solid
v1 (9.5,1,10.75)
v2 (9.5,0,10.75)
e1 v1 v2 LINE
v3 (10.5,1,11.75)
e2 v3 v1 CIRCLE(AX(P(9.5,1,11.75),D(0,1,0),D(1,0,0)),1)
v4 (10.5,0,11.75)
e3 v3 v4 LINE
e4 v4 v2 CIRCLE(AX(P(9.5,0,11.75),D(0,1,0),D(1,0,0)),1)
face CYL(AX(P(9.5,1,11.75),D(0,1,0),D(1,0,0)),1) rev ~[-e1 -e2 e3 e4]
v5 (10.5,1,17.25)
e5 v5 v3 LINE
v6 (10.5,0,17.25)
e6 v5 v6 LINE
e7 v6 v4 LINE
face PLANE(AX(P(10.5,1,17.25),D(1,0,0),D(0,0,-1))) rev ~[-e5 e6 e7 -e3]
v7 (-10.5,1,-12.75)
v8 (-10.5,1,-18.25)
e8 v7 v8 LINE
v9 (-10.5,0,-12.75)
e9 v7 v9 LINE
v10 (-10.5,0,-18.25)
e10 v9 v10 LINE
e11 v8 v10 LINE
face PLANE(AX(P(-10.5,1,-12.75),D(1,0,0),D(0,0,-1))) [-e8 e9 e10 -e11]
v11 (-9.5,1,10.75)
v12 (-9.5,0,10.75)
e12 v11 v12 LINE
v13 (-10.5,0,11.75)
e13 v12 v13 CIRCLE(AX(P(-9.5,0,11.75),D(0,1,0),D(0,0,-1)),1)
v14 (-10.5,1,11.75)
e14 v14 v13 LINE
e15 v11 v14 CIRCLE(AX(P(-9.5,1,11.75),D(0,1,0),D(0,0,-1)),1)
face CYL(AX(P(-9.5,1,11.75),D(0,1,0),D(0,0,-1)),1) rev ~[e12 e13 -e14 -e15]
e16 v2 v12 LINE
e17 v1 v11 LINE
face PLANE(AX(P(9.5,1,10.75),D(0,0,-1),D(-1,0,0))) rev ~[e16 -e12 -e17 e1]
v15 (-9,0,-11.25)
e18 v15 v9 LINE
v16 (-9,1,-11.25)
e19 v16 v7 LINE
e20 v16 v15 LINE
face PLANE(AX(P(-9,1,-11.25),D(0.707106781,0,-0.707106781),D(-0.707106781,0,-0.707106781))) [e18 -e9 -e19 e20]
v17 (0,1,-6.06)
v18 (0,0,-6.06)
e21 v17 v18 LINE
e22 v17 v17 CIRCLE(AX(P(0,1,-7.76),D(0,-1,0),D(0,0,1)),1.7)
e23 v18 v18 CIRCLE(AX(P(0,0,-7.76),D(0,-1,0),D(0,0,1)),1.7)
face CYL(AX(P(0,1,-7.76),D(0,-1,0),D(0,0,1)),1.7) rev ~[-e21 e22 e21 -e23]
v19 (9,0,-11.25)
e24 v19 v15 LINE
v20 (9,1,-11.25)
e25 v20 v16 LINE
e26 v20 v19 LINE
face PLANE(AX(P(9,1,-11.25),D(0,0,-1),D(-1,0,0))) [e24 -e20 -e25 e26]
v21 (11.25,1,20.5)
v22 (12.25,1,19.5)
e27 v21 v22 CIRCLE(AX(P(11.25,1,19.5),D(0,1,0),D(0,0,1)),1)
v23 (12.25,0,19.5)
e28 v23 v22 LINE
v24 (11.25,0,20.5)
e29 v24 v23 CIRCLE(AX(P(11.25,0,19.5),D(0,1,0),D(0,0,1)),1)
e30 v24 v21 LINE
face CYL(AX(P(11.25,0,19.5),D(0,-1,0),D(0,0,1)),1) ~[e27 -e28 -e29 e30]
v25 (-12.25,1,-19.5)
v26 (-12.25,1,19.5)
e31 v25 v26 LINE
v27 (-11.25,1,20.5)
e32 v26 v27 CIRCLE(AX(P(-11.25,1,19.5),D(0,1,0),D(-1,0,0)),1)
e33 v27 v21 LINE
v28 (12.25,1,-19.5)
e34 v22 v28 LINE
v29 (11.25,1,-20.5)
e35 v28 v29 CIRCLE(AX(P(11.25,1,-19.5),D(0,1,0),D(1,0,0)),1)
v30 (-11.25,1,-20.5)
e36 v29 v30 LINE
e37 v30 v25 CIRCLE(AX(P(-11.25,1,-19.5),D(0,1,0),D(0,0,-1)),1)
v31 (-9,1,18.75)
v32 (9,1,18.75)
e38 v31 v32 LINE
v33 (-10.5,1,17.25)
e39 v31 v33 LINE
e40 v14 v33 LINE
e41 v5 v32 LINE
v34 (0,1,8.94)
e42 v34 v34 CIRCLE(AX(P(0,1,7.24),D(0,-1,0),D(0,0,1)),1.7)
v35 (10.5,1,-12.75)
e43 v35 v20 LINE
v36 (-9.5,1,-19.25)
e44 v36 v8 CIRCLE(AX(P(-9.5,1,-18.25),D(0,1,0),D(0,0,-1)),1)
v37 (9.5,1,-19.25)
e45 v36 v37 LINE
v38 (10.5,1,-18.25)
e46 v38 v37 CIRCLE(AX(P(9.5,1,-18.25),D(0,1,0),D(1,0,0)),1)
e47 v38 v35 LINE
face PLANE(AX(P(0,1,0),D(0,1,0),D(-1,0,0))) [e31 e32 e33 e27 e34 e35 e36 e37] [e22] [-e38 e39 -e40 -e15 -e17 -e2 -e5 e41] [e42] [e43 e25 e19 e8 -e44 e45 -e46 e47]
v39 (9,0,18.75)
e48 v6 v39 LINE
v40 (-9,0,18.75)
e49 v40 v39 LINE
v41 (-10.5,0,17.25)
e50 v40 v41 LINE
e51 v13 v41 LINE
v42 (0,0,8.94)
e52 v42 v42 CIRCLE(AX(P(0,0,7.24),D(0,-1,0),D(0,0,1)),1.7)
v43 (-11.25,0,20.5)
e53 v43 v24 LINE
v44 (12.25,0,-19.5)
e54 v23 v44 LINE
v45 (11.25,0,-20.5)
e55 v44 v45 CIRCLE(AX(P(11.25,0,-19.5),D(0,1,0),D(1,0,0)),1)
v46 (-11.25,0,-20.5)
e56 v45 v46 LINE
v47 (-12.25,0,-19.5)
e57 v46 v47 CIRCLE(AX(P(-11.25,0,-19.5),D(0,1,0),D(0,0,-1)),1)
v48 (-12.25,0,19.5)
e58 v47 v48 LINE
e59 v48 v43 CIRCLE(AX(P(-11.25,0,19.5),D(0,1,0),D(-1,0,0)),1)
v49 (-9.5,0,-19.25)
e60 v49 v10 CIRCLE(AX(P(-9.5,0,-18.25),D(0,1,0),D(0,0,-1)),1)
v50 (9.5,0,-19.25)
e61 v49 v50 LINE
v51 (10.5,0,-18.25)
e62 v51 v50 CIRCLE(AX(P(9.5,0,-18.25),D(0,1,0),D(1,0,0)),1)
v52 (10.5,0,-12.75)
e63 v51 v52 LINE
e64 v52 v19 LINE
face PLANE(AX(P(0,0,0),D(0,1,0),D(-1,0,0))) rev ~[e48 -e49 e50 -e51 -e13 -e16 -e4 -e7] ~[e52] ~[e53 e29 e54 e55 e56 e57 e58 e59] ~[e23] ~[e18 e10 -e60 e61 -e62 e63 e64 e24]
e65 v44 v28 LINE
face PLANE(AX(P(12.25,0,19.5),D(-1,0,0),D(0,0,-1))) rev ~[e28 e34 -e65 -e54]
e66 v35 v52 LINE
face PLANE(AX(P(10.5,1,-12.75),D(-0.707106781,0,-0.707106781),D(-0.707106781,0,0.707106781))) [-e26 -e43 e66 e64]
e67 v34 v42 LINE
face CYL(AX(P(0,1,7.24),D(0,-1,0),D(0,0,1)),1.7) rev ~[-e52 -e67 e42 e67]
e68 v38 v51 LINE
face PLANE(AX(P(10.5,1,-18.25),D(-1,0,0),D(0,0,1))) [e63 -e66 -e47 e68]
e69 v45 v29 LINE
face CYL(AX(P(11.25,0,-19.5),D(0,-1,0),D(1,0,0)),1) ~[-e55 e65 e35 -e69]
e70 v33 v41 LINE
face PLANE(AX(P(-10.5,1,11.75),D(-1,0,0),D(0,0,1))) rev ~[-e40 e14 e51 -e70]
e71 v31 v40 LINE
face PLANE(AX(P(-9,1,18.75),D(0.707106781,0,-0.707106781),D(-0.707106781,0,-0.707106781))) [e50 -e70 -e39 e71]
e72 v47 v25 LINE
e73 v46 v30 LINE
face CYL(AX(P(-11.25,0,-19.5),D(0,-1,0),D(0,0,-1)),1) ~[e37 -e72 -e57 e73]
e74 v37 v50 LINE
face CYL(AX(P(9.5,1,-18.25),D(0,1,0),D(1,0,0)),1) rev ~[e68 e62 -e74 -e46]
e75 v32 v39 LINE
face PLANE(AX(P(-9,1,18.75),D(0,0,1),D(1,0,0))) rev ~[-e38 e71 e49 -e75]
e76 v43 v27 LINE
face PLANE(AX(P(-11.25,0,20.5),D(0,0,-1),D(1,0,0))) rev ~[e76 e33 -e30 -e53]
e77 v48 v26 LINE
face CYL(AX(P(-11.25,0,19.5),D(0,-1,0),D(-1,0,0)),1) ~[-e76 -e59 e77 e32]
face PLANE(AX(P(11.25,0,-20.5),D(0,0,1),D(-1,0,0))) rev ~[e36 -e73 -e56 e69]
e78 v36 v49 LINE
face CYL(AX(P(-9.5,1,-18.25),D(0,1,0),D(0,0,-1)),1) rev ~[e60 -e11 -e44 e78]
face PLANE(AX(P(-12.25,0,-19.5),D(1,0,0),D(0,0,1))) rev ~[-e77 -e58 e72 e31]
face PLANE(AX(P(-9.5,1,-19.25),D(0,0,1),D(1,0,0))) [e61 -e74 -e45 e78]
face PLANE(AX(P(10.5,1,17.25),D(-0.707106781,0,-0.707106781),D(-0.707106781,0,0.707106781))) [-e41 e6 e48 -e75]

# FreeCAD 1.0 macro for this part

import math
import FreeCAD as App
import Part
import Sketcher

V = App.Vector
Q = App.Units.Quantity

doc = App.newDocument("Part")
body = doc.addObject("PartDesign::Body", "Body")

sketch1 = body.newObject("Sketcher::SketchObject", "Sketch")
sketch1.AttachmentSupport = (doc.getObject("XZ_Plane"), [""])
sketch1.MapMode = "FlatFace"
sketch1.addGeometry([
    Part.ArcOfCircle(Part.Circle(V(11.25, -19.5, 0), V(0, 0, 1), 1), math.radians(-90), math.radians(0)),
    Part.LineSegment(V(11.25, -20.5, 0), V(-11.25, -20.5, 0)),
    Part.ArcOfCircle(Part.Circle(V(-11.25, -19.5, 0), V(0, 0, 1), 1), math.radians(180), math.radians(270)),
    Part.LineSegment(V(-12.25, -19.5, 0), V(-12.25, 19.5, 0)),
    Part.ArcOfCircle(Part.Circle(V(-11.25, 19.5, 0), V(0, 0, 1), 1), math.radians(90), math.radians(180)),
    Part.LineSegment(V(-11.25, 20.5, 0), V(11.25, 20.5, 0)),
    Part.ArcOfCircle(Part.Circle(V(11.25, 19.5, 0), V(0, 0, 1), 1), math.radians(0), math.radians(90)),
    Part.LineSegment(V(12.25, 19.5, 0), V(12.25, -19.5, 0)),
], False)
sketch1.addConstraint([
    Sketcher.Constraint("Tangent", 0, 1, 1, 1),
    Sketcher.Constraint("Tangent", 1, 2, 2, 2),
    Sketcher.Constraint("Tangent", 2, 1, 3, 1),
    Sketcher.Constraint("Tangent", 3, 2, 4, 2),
    Sketcher.Constraint("Tangent", 4, 1, 5, 1),
    Sketcher.Constraint("Tangent", 5, 2, 6, 2),
    Sketcher.Constraint("Tangent", 6, 1, 7, 1),
    Sketcher.Constraint("Tangent", 7, 2, 0, 2),
    Sketcher.Constraint("Horizontal", 1),
    Sketcher.Constraint("Vertical", 3),
    Sketcher.Constraint("Horizontal", 5),
    Sketcher.Constraint("Vertical", 7),
    Sketcher.Constraint("Equal", 0, 2),
    Sketcher.Constraint("Equal", 2, 4),
    Sketcher.Constraint("Equal", 4, 6),
    Sketcher.Constraint("Symmetric", 0, 3, 4, 3, -1, 1),
    Sketcher.Constraint("Radius", 0, Q("1 mm")),
    Sketcher.Constraint("DistanceX", 3, 2, 6, 1, Q("24.5 mm")),
    Sketcher.Constraint("DistanceY", 3, 1, 3, 2, Q("39 mm")),
])
pad1 = body.newObject("PartDesign::Pad", "Pad")
pad1.Profile = sketch1
pad1.Length = 1
pad1.Reversed = True

sketch2 = body.newObject("Sketcher::SketchObject", "Sketch001")
sketch2.AttachmentSupport = (doc.getObject("XZ_Plane"), [""])
sketch2.MapMode = "FlatFace"
sketch2.AttachmentOffset = App.Placement(V(0, 0, -1), App.Rotation())
sketch2.addGeometry([
    Part.ArcOfCircle(Part.Circle(V(9.5, 11.75, 0), V(0, 0, 1), 1), math.radians(-90), math.radians(0)),
    Part.LineSegment(V(9.5, 10.75, 0), V(-9.5, 10.75, 0)),
    Part.ArcOfCircle(Part.Circle(V(-9.5, 11.75, 0), V(0, 0, 1), 1), math.radians(180), math.radians(270)),
    Part.LineSegment(V(-10.5, 11.75, 0), V(-10.5, 17.25, 0)),
    Part.LineSegment(V(-10.5, 17.25, 0), V(-9, 18.75, 0)),
    Part.LineSegment(V(-9, 18.75, 0), V(9, 18.75, 0)),
    Part.LineSegment(V(9, 18.75, 0), V(10.5, 17.25, 0)),
    Part.LineSegment(V(10.5, 17.25, 0), V(10.5, 11.75, 0)),
    Part.LineSegment(V(9.5, -19.25, 0), V(-9.5, -19.25, 0)),
    Part.ArcOfCircle(Part.Circle(V(-9.5, -18.25, 0), V(0, 0, 1), 1), math.radians(180), math.radians(270)),
    Part.LineSegment(V(-10.5, -18.25, 0), V(-10.5, -12.75, 0)),
    Part.LineSegment(V(-10.5, -12.75, 0), V(-9, -11.25, 0)),
    Part.LineSegment(V(-9, -11.25, 0), V(9, -11.25, 0)),
    Part.LineSegment(V(9, -11.25, 0), V(10.5, -12.75, 0)),
    Part.LineSegment(V(10.5, -12.75, 0), V(10.5, -18.25, 0)),
    Part.ArcOfCircle(Part.Circle(V(9.5, -18.25, 0), V(0, 0, 1), 1), math.radians(-90), math.radians(0)),
], False)
sketch2.addConstraint([
    Sketcher.Constraint("Tangent", 0, 1, 1, 1),
    Sketcher.Constraint("Tangent", 1, 2, 2, 2),
    Sketcher.Constraint("Tangent", 2, 1, 3, 1),
    Sketcher.Constraint("Coincident", 3, 2, 4, 1),
    Sketcher.Constraint("Coincident", 4, 2, 5, 1),
    Sketcher.Constraint("Coincident", 5, 2, 6, 1),
    Sketcher.Constraint("Coincident", 6, 2, 7, 1),
    Sketcher.Constraint("Tangent", 7, 2, 0, 2),
    Sketcher.Constraint("Tangent", 8, 2, 9, 2),
    Sketcher.Constraint("Tangent", 9, 1, 10, 1),
    Sketcher.Constraint("Coincident", 10, 2, 11, 1),
    Sketcher.Constraint("Coincident", 11, 2, 12, 1),
    Sketcher.Constraint("Coincident", 12, 2, 13, 1),
    Sketcher.Constraint("Coincident", 13, 2, 14, 1),
    Sketcher.Constraint("Tangent", 14, 2, 15, 2),
    Sketcher.Constraint("Tangent", 15, 1, 8, 1),
    Sketcher.Constraint("Horizontal", 1),
    Sketcher.Constraint("Vertical", 3),
    Sketcher.Constraint("Horizontal", 5),
    Sketcher.Constraint("Vertical", 7),
    Sketcher.Constraint("Horizontal", 8),
    Sketcher.Constraint("Vertical", 10),
    Sketcher.Constraint("Horizontal", 12),
    Sketcher.Constraint("Vertical", 14),
    Sketcher.Constraint("Equal", 0, 2),
    Sketcher.Constraint("Equal", 2, 9),
    Sketcher.Constraint("Equal", 9, 15),
    Sketcher.Constraint("Symmetric", 3, 2, 6, 2, -2),
    Sketcher.Constraint("Symmetric", 10, 2, 13, 2, -2),
    Sketcher.Constraint("Perpendicular", 4, 6),
    Sketcher.Constraint("Perpendicular", 6, 11),
    Sketcher.Constraint("Perpendicular", 11, 13),
    Sketcher.Constraint("Vertical", 2, 3, 9, 3),
    Sketcher.Constraint("Vertical", 4, 2, 11, 2),
    Sketcher.Constraint("Equal", 7, 10),
    Sketcher.Constraint("Equal", 4, 6),
    Sketcher.Constraint("Radius", 0, Q("1 mm")),
    Sketcher.Constraint("DistanceY", 9, 3, 2, 3, Q("30 mm")),
    Sketcher.Constraint("DistanceY", 1, 2, 4, 2, Q("8 mm")),
    Sketcher.Constraint("DistanceX", 10, 2, 13, 2, Q("21 mm")),
    Sketcher.Constraint("DistanceX", 3, 2, 4, 2, Q("1.5 mm")),
    Sketcher.Constraint("DistanceY", -1, 1, 0, 3, Q("11.75 mm")),
])
pocket1 = body.newObject("PartDesign::Pocket", "Pocket")
pocket1.Profile = sketch2
pocket1.Type = "ThroughAll"
pocket1.Reversed = True

sketch3 = body.newObject("Sketcher::SketchObject", "Sketch002")
sketch3.AttachmentSupport = (doc.getObject("XZ_Plane"), [""])
sketch3.MapMode = "FlatFace"
sketch3.AttachmentOffset = App.Placement(V(0, 0, -1), App.Rotation())
sketch3.addGeometry([
    Part.Circle(V(0, 7.24, 0), V(0, 0, 1), 1.7),
    Part.Circle(V(0, -7.76, 0), V(0, 0, 1), 1.7),
], False)
sketch3.addConstraint([
    Sketcher.Constraint("Equal", 0, 1),
    Sketcher.Constraint("PointOnObject", 0, 3, -2),
    Sketcher.Constraint("PointOnObject", 1, 3, -2),
    Sketcher.Constraint("Diameter", 0, Q("3.4 mm")),
    Sketcher.Constraint("DistanceY", 1, 3, 0, 3, Q("15 mm")),
    Sketcher.Constraint("DistanceY", -1, 1, 0, 3, Q("7.24 mm")),
])
doc.recompute()
hole = body.newObject("PartDesign::Hole", "Hole")
hole.Profile = sketch3
hole.ThreadType = "None"
hole.Diameter = 3.4
hole.DepthType = "Dimension"
hole.Depth = 7.9
hole.DrillPoint = "Angled"
hole.DrillPointAngle = 118
hole.Reversed = True

doc.recompute()
